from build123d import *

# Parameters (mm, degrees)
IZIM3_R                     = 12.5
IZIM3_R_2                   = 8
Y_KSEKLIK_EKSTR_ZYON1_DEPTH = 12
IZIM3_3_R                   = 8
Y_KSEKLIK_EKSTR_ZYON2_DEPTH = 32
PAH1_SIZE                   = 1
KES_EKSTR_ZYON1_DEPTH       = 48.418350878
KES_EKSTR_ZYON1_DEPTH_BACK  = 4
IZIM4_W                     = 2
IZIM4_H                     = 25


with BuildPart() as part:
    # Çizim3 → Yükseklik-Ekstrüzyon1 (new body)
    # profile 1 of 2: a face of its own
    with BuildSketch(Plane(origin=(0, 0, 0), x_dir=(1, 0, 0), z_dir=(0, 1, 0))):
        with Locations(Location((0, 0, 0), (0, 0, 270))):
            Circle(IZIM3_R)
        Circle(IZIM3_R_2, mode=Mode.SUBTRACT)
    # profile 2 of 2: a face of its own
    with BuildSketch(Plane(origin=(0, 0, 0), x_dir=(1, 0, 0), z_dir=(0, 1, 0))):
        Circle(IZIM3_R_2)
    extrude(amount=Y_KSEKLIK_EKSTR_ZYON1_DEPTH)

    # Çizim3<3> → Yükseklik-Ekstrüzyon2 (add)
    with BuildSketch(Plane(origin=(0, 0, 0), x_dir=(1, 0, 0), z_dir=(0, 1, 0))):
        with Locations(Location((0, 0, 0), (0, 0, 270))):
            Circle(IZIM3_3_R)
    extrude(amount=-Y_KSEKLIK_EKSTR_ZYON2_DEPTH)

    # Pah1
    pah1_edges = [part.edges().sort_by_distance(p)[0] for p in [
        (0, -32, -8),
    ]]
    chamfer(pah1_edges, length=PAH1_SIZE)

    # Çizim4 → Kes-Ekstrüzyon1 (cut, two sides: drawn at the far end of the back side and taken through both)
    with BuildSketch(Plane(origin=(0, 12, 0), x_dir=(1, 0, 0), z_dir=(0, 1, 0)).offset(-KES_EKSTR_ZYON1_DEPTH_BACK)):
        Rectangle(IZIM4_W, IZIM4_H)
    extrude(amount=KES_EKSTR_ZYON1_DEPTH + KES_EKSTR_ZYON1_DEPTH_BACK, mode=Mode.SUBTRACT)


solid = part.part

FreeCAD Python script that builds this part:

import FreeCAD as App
import Part
import Sketcher
Q = App.Units.Quantity


def edges_at(feature, points):
    """Names of the edges that pass closest to the given points."""
    edges = feature.Shape.Edges
    near = lambda p: min(range(len(edges)), key=lambda i: edges[i].distToShape(Part.Vertex(*p))[0])
    return sorted({f"Edge{near(p) + 1}" for p in points})

doc = App.newDocument("Part")
params = doc.addObject("Spreadsheet::Sheet", "Params")
for row, (alias, value) in enumerate([
    ("sketch1_diameter", "25 mm"),
    ("pad1_length", "12 mm"),
    ("sketch2_diameter", "16 mm"),
    ("pad2_length", "32 mm"),
    ("chamfer_size", "1 mm"),
    ("sketch3_width", "2 mm"),
    ("sketch3_height", "25 mm"),
    ("pocket1_length", "48.418351 mm"),
    ("pocket1_length2", "4 mm"),
], start=1):
    params.set(f"A{row}", alias)
    params.set(f"B{row}", "=" + value)
    params.setAlias(f"B{row}", alias)

body = doc.addObject("PartDesign::Body", "Body")

# Sketch on XZ plane
sketch1 = doc.addObject("Sketcher::SketchObject", "Sketch")
body.addObject(sketch1)
sketch1.AttachmentSupport = (doc.XZ_Plane, [""])
sketch1.MapMode = "FlatFace"
sketch1.addGeometry(Part.Circle(App.Vector(0, 0, 0), App.Vector(0, 0, 1), 12), False)
sketch1.addConstraint([
    Sketcher.Constraint("Coincident", 0, 3, -1, 1),
    Sketcher.Constraint("Diameter", 0, Q("25 mm")),
])
sketch1.setExpression("Constraints[1]", "Params.sketch1_diameter")
pad1 = doc.addObject("PartDesign::Pad", "Pad")
body.addObject(pad1)
pad1.Profile = sketch1
pad1.setExpression("Length", "Params.pad1_length")
pad1.Reversed = True

# Sketch on XZ plane
sketch2 = doc.addObject("Sketcher::SketchObject", "Sketch001")
body.addObject(sketch2)
sketch2.AttachmentSupport = (doc.XZ_Plane, [""])
sketch2.MapMode = "FlatFace"
sketch2.addGeometry(Part.Circle(App.Vector(0, 0, 0), App.Vector(0, 0, 1), 8), False)
sketch2.addConstraint([
    Sketcher.Constraint("Coincident", 0, 3, -1, 1),
    Sketcher.Constraint("Diameter", 0, Q("16 mm")),
])
sketch2.setExpression("Constraints[1]", "Params.sketch2_diameter")
pad2 = doc.addObject("PartDesign::Pad", "Pad001")
body.addObject(pad2)
pad2.Profile = sketch2
pad2.setExpression("Length", "Params.pad2_length")
doc.recompute()

chamfer = doc.addObject("PartDesign::Chamfer", "Chamfer")
body.addObject(chamfer)
chamfer.Base = (pad2, edges_at(pad2, [(0, -32, -8)]))
chamfer.setExpression("Size", "Params.chamfer_size")

# Sketch on XZ plane
sketch3 = doc.addObject("Sketcher::SketchObject", "Sketch002")
body.addObject(sketch3)
sketch3.AttachmentSupport = (doc.XZ_Plane, [""])
sketch3.MapMode = "FlatFace"
sketch3.AttachmentOffset = App.Placement(App.Vector(0, 0, -12), App.Rotation())
sketch3.addGeometry([
    Part.LineSegment(App.Vector(-1, -12.5, 0), App.Vector(-1, 12.5, 0)),
    Part.LineSegment(App.Vector(-1, 12.5, 0), App.Vector(1, 12.5, 0)),
    Part.LineSegment(App.Vector(1, 12.5, 0), App.Vector(1, -12.5, 0)),
    Part.LineSegment(App.Vector(1, -12.5, 0), App.Vector(-1, -12.5, 0)),
], False)
sketch3.addConstraint([
    Sketcher.Constraint("Coincident", 0, 2, 1, 1),
    Sketcher.Constraint("Coincident", 1, 2, 2, 1),
    Sketcher.Constraint("Coincident", 2, 2, 3, 1),
    Sketcher.Constraint("Coincident", 3, 2, 0, 1),
    Sketcher.Constraint("Vertical", 0),
    Sketcher.Constraint("Horizontal", 1),
    Sketcher.Constraint("Vertical", 2),
    Sketcher.Constraint("Horizontal", 3),
    Sketcher.Constraint("Symmetric", 0, 2, 2, 2, -1, 1),
    Sketcher.Constraint("DistanceX", 1, 1, 1, 2, Q("2 mm")),
    Sketcher.Constraint("DistanceY", 0, 1, 0, 2, Q("25 mm")),
])
sketch3.setExpression("Constraints[9]", "Params.sketch3_width")
sketch3.setExpression("Constraints[10]", "Params.sketch3_height")
pocket1 = doc.addObject("PartDesign::Pocket", "Pocket")
body.addObject(pocket1)
pocket1.Profile = sketch3
pocket1.Type = "TwoLengths"
pocket1.setExpression("Length", "Params.pocket1_length")
pocket1.setExpression("Length2", "Params.pocket1_length2")

doc.recompute()
